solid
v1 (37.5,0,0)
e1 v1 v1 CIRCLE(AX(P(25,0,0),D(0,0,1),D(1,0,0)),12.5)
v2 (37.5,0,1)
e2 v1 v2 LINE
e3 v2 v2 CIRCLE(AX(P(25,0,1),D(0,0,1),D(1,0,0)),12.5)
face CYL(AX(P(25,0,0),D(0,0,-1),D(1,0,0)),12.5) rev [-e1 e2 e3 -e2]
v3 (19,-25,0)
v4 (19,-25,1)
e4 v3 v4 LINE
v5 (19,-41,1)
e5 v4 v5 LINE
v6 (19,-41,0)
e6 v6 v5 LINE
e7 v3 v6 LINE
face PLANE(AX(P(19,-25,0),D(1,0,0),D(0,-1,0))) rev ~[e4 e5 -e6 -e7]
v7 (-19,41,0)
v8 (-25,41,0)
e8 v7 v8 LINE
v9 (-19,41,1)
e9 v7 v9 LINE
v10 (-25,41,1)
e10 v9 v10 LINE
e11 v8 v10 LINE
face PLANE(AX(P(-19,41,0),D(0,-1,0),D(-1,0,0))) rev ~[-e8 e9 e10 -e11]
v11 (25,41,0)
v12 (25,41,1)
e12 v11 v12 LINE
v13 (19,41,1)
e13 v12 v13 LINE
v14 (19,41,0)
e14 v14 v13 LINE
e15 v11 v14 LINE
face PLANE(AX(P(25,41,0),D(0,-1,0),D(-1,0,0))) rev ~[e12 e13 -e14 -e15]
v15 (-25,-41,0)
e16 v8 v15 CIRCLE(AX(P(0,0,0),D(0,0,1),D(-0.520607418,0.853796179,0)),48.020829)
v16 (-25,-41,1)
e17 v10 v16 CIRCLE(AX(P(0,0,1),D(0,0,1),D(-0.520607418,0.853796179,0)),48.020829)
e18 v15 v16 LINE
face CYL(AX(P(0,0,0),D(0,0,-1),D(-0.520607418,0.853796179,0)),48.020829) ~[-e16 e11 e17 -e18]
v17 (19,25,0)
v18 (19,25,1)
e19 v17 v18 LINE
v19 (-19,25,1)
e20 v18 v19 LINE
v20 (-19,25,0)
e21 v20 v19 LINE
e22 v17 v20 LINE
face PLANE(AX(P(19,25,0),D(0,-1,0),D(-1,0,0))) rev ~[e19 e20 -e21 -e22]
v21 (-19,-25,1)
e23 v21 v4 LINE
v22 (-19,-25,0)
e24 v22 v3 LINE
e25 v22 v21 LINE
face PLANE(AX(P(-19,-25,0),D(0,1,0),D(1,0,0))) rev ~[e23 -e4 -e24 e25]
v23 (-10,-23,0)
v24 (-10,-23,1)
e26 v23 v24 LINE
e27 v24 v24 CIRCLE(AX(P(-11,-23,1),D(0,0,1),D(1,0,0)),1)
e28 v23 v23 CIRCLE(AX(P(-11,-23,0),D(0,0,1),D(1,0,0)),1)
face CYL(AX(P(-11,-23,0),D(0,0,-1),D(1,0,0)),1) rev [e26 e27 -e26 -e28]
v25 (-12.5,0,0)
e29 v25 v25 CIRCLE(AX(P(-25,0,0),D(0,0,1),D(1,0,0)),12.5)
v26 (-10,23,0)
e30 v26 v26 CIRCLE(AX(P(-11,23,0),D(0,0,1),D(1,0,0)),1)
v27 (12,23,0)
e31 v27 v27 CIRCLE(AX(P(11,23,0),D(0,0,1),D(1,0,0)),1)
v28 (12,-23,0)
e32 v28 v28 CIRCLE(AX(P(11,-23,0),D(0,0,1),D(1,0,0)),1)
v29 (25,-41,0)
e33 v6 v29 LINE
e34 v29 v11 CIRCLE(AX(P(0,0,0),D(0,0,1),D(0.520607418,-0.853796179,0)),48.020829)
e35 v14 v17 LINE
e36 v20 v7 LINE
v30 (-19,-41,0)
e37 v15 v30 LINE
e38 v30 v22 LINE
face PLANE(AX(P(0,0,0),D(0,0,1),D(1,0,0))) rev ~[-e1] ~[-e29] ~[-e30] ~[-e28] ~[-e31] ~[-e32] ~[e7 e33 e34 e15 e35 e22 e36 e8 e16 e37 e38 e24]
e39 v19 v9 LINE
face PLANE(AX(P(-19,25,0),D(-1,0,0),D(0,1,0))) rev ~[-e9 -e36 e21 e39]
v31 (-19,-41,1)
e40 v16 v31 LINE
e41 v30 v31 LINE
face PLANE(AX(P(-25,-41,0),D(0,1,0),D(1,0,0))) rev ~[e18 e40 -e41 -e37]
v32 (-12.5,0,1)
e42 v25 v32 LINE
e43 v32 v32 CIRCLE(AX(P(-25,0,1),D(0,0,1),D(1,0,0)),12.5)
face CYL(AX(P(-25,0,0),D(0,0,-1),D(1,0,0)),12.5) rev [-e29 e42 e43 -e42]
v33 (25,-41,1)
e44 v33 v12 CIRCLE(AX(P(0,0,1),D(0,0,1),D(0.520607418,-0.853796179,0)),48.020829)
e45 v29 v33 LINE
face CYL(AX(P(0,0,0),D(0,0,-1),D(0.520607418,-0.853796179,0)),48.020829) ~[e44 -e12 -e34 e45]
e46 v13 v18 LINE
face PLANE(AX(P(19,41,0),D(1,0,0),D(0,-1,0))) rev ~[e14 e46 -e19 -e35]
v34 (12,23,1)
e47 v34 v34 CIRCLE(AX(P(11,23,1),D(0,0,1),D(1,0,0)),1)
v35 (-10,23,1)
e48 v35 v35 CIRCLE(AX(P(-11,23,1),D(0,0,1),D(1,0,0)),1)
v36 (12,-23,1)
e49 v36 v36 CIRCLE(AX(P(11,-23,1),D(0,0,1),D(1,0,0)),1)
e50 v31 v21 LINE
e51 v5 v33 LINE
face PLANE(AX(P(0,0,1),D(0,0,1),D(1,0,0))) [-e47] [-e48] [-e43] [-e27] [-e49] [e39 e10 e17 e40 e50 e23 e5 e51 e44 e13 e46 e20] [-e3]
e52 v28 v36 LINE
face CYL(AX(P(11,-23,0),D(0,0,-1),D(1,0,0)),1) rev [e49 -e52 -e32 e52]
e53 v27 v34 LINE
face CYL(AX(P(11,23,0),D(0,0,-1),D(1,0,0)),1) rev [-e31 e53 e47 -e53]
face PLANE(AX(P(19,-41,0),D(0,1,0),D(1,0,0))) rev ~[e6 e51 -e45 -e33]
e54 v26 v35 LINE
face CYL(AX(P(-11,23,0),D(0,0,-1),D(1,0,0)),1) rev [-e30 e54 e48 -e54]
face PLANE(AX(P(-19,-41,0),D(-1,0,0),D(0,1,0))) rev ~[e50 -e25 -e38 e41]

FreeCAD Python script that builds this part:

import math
import FreeCAD as App
import Part
import Sketcher
from FreeCAD import Vector

doc = App.newDocument("Part")
params = doc.addObject("Spreadsheet::Sheet", "Params")
for row, (alias, value) in enumerate([
    ("sketch1_diameter", "2 mm"),
    ("sketch1_diameter2", "25 mm"),
    ("sketch1_width", "38 mm"),
    ("sketch1_width2", "6 mm"),
    ("sketch1_height", "16 mm"),
    ("pad1_length", "1 mm"),
], start=1):
    params.set(f"A{row}", alias)
    params.set(f"B{row}", "=" + value)
    params.setAlias(f"B{row}", alias)

body = doc.addObject("PartDesign::Body", "Body")

sketch1 = body.newObject("Sketcher::SketchObject", "Sketch")
sketch1.AttachmentSupport = (doc.getObject("XY_Plane"), [""])
sketch1.MapMode = "FlatFace"
sketch1.addGeometry(Part.LineSegment(Vector(19, 25, 0), Vector(-19, 25, 0)), False)
sketch1.addGeometry(Part.LineSegment(Vector(-19, 25, 0), Vector(-19, 41, 0)), False)
sketch1.addGeometry(Part.LineSegment(Vector(-19, 41, 0), Vector(-25, 41, 0)), False)
sketch1.addGeometry(Part.ArcOfCircle(Part.Circle(Vector(0, 0, 0), Vector(0, 0, 1), 48.020829), math.radians(121.373005), math.radians(238.626995)), False)
sketch1.addGeometry(Part.LineSegment(Vector(-25, -41, 0), Vector(-19, -41, 0)), False)
sketch1.addGeometry(Part.LineSegment(Vector(-19, -41, 0), Vector(-19, -25, 0)), False)
sketch1.addGeometry(Part.LineSegment(Vector(-19, -25, 0), Vector(19, -25, 0)), False)
sketch1.addGeometry(Part.LineSegment(Vector(19, -25, 0), Vector(19, -41, 0)), False)
sketch1.addGeometry(Part.LineSegment(Vector(19, -41, 0), Vector(25, -41, 0)), False)
sketch1.addGeometry(Part.ArcOfCircle(Part.Circle(Vector(0, 0, 0), Vector(0, 0, 1), 48.020829), math.radians(-58.626995), math.radians(58.626995)), False)
sketch1.addGeometry(Part.LineSegment(Vector(25, 41, 0), Vector(19, 41, 0)), False)
sketch1.addGeometry(Part.LineSegment(Vector(19, 41, 0), Vector(19, 25, 0)), False)
sketch1.addGeometry(Part.Circle(Vector(-11, -23, 0), Vector(0, 0, 1), 1), False)
sketch1.addGeometry(Part.Circle(Vector(11, -23, 0), Vector(0, 0, 1), 1), False)
sketch1.addGeometry(Part.Circle(Vector(-25, 0, 0), Vector(0, 0, 1), 12.5), False)
sketch1.addGeometry(Part.Circle(Vector(-11, 23, 0), Vector(0, 0, 1), 1), False)
sketch1.addGeometry(Part.Circle(Vector(25, 0, 0), Vector(0, 0, 1), 12.5), False)
sketch1.addGeometry(Part.Circle(Vector(11, 23, 0), Vector(0, 0, 1), 1), False)
sketch1.addConstraint(Sketcher.Constraint("Coincident", 0, 2, 1, 1))
sketch1.addConstraint(Sketcher.Constraint("Coincident", 1, 2, 2, 1))
sketch1.addConstraint(Sketcher.Constraint("Coincident", 2, 2, 3, 1))
sketch1.addConstraint(Sketcher.Constraint("Coincident", 3, 2, 4, 1))
sketch1.addConstraint(Sketcher.Constraint("Coincident", 4, 2, 5, 1))
sketch1.addConstraint(Sketcher.Constraint("Coincident", 5, 2, 6, 1))
sketch1.addConstraint(Sketcher.Constraint("Coincident", 6, 2, 7, 1))
sketch1.addConstraint(Sketcher.Constraint("Coincident", 7, 2, 8, 1))
sketch1.addConstraint(Sketcher.Constraint("Coincident", 8, 2, 9, 1))
sketch1.addConstraint(Sketcher.Constraint("Coincident", 9, 2, 10, 1))
sketch1.addConstraint(Sketcher.Constraint("Coincident", 10, 2, 11, 1))
sketch1.addConstraint(Sketcher.Constraint("Coincident", 11, 2, 0, 1))
sketch1.addConstraint(Sketcher.Constraint("Horizontal", 0))
sketch1.addConstraint(Sketcher.Constraint("Vertical", 1))
sketch1.addConstraint(Sketcher.Constraint("Horizontal", 2))
sketch1.addConstraint(Sketcher.Constraint("Horizontal", 4))
sketch1.addConstraint(Sketcher.Constraint("Vertical", 5))
sketch1.addConstraint(Sketcher.Constraint("Horizontal", 6))
sketch1.addConstraint(Sketcher.Constraint("Vertical", 7))
sketch1.addConstraint(Sketcher.Constraint("Horizontal", 8))
sketch1.addConstraint(Sketcher.Constraint("Horizontal", 10))
sketch1.addConstraint(Sketcher.Constraint("Vertical", 11))
sketch1.addConstraint(Sketcher.Constraint("Coincident", 3, 3, -1, 1))
sketch1.addConstraint(Sketcher.Constraint("Coincident", 9, 3, -1, 1))
sketch1.addConstraint(Sketcher.Constraint("Equal", 3, 9))
sketch1.addConstraint(Sketcher.Constraint("Equal", 12, 13))
sketch1.addConstraint(Sketcher.Constraint("Equal", 13, 15))
sketch1.addConstraint(Sketcher.Constraint("Equal", 14, 16))
sketch1.addConstraint(Sketcher.Constraint("Equal", 15, 17))
sketch1.addConstraint(Sketcher.Constraint("Symmetric", 13, 3, 15, 3, -1, 1))
sketch1.addConstraint(Sketcher.Constraint("Symmetric", 14, 3, 16, 3, -1, 1))
sketch1.addConstraint(Sketcher.Constraint("Symmetric", 12, 3, 17, 3, -1, 1))
sketch1.addConstraint(Sketcher.Constraint("Symmetric", 0, 2, 6, 2, -1, 1))
sketch1.addConstraint(Sketcher.Constraint("Symmetric", 4, 2, 10, 2, -1, 1))
sketch1.addConstraint(Sketcher.Constraint("Symmetric", 12, 3, 13, 3, -2))
sketch1.addConstraint(Sketcher.Constraint("Symmetric", 4, 2, 7, 2, -2))
sketch1.addConstraint(Sketcher.Constraint("PointOnObject", 14, 3, -1))
sketch1.addConstraint(Sketcher.Constraint("Horizontal", 2, 2, 9, 2))
sketch1.addConstraint(Sketcher.Constraint("Vertical", 14, 3, 2, 2))
sketch1.addConstraint(Sketcher.Constraint("Diameter", 12, 2.0))
sketch1.addConstraint(Sketcher.Constraint("Diameter", 14, 25.0))
sketch1.addConstraint(Sketcher.Constraint("DistanceX", 0, 2, 0, 1, 38.0))
sketch1.addConstraint(Sketcher.Constraint("DistanceX", 2, 2, 2, 1, 6.0))
sketch1.addConstraint(Sketcher.Constraint("DistanceY", 1, 1, 1, 2, 16.0))
sketch1.addConstraint(Sketcher.Constraint("DistanceX", 12, 3, -1, 1, 11.0))
sketch1.addConstraint(Sketcher.Constraint("DistanceY", 12, 3, -1, 1, 23.0))
sketch1.addConstraint(Sketcher.Constraint("DistanceY", -1, 1, 0, 2, 25.0))
sketch1.setExpression("Constraints[39]", "Params.sketch1_diameter")
sketch1.setExpression("Constraints[40]", "Params.sketch1_diameter2")
sketch1.setExpression("Constraints[41]", "Params.sketch1_width")
sketch1.setExpression("Constraints[42]", "Params.sketch1_width2")
sketch1.setExpression("Constraints[43]", "Params.sketch1_height")
pad1 = body.newObject("PartDesign::Pad", "Pad")
pad1.Profile = sketch1
pad1.setExpression("Length", "Params.pad1_length")

doc.recompute()
